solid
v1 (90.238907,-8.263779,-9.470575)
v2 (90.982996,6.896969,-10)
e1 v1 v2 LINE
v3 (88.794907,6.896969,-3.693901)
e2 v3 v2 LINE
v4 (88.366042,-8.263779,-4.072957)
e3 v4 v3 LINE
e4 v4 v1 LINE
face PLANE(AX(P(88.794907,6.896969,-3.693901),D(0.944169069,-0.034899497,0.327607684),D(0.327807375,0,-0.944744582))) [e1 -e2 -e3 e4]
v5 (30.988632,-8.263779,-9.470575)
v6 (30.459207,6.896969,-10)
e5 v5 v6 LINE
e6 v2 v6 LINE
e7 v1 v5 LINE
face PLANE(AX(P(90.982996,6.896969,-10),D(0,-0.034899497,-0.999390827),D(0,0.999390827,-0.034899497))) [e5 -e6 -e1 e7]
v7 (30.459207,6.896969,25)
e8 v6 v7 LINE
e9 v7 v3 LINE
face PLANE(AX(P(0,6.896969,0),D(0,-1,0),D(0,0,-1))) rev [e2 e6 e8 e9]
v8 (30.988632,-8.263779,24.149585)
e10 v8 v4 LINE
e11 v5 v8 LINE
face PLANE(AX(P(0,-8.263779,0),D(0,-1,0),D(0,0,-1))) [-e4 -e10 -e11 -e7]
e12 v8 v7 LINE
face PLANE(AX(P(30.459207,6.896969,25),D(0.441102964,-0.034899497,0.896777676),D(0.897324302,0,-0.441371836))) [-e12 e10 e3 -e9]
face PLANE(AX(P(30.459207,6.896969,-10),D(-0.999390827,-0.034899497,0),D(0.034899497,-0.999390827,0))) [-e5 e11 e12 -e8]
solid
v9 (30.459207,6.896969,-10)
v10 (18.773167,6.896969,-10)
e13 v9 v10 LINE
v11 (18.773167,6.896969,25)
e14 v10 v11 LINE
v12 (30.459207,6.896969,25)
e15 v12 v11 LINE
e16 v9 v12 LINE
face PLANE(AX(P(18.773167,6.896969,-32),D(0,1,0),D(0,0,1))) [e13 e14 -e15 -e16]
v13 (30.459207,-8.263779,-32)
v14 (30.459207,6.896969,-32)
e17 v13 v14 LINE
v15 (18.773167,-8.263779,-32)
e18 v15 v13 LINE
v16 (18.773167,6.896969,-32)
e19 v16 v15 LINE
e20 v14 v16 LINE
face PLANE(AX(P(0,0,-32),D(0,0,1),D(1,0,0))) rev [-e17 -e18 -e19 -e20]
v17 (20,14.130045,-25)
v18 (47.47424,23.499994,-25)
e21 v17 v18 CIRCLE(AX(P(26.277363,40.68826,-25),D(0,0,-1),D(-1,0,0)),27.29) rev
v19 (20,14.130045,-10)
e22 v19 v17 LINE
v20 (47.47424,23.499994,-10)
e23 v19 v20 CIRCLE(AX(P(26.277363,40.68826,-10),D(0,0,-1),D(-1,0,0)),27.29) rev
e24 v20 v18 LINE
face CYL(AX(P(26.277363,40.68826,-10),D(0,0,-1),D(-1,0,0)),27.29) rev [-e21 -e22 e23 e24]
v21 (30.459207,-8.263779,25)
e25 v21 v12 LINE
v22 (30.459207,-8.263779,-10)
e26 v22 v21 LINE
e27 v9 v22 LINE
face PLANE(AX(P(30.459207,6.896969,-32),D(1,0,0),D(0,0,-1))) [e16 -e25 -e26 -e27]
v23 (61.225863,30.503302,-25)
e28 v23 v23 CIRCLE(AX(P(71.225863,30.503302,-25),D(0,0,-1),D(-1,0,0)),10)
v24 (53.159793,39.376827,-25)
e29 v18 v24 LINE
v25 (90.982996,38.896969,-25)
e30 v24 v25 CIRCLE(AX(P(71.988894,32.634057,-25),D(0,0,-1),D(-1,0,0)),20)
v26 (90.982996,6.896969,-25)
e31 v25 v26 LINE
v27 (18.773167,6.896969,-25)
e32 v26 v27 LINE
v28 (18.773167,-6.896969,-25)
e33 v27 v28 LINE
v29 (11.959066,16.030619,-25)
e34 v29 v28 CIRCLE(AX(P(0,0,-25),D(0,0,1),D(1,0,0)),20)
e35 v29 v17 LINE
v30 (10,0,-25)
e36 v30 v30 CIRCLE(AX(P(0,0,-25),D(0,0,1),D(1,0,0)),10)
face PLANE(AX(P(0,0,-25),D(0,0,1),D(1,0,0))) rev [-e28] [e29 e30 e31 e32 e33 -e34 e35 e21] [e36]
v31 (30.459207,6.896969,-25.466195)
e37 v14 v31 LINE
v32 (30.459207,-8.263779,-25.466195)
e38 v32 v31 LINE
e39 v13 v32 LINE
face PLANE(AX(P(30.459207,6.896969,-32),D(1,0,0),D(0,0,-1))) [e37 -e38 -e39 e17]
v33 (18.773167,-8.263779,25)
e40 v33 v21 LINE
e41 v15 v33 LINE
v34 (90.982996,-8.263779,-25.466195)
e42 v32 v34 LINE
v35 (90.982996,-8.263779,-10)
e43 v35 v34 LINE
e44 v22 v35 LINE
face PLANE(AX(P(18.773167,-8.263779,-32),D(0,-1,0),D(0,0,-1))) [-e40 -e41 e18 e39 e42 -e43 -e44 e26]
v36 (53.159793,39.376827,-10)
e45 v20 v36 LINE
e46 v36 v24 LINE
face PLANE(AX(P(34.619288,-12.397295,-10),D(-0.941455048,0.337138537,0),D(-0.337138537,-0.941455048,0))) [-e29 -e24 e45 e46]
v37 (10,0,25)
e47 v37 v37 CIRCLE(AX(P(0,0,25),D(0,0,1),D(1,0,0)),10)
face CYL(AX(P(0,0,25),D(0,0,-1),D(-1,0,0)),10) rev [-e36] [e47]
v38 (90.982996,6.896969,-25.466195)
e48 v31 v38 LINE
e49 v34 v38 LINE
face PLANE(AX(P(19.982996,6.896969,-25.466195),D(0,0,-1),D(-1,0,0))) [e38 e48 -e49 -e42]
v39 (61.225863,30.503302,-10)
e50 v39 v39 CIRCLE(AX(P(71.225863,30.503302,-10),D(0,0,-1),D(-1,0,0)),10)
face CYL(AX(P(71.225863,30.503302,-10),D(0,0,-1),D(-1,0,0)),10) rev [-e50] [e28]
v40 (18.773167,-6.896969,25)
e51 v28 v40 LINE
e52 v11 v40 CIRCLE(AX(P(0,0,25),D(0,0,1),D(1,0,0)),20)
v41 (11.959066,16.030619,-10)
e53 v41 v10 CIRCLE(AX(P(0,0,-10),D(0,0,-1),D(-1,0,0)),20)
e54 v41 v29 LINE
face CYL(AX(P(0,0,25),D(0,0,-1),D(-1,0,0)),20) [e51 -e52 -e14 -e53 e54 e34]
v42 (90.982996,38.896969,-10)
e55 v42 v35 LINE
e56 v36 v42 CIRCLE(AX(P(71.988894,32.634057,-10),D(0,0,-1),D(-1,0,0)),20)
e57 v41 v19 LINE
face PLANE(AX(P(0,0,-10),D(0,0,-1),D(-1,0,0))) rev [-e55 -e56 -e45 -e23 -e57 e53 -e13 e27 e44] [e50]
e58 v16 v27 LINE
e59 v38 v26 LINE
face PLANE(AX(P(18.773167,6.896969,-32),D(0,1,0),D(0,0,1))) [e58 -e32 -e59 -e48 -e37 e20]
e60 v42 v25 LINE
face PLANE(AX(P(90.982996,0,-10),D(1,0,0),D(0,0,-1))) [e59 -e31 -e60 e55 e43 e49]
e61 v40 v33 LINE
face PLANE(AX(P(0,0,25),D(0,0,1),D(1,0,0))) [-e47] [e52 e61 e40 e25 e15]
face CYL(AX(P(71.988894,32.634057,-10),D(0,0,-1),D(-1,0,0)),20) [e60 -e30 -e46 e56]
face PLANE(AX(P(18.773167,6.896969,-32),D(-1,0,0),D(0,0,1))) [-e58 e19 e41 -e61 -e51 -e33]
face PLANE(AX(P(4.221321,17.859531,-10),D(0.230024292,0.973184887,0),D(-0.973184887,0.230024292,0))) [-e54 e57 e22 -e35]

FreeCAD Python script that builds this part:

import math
import FreeCAD as App
import Part
import Sketcher

V = App.Vector
Q = App.Units.Quantity


def add_polygon(sketch, points):
    """Adds a closed chain of lines whose ends are joined by coincident constraints."""
    first, n = sketch.GeometryCount, len(points)
    for a, b in zip(points, points[1:] + points[:1]):
        sketch.addGeometry(Part.LineSegment(App.Vector(*a, 0), App.Vector(*b, 0)), False)
    for i in range(n):
        sketch.addConstraint(Sketcher.Constraint("Coincident", first + i, 2, first + (i + 1) % n, 1))

doc = App.newDocument("Part")
body = doc.addObject("PartDesign::Body", "Body")

sketch1 = body.newObject("Sketcher::SketchObject", "Sketch")
sketch1.AttachmentSupport = (doc.getObject("XY_Plane"), [""])
sketch1.MapMode = "FlatFace"
sketch1.addGeometry([
    Part.Circle(V(0, 0, 0), V(0, 0, 1), 20),
    Part.Circle(V(0, 0, 0), V(0, 0, 1), 10),
], False)
sketch1.addConstraint([
    Sketcher.Constraint("Coincident", 0, 3, -1, 1),
    Sketcher.Constraint("Coincident", 1, 3, -1, 1),
    Sketcher.Constraint("Diameter", 0, Q("40 mm")),
    Sketcher.Constraint("Diameter", 1, Q("20 mm")),
])
pad1 = body.newObject("PartDesign::Pad", "Pad")
pad1.Profile = sketch1
pad1.Length = 50
pad1.Midplane = True

sketch2 = body.newObject("Sketcher::SketchObject", "Sketch001")
sketch2.AttachmentSupport = (doc.getObject("XY_Plane"), [""])
sketch2.MapMode = "FlatFace"
sketch2.AttachmentOffset = App.Placement(V(0, 0, -25), App.Rotation())
sketch2.addGeometry([
    Part.ArcOfCircle(Part.Circle(V(0, 0, 0), V(0, 0, 1), 20), math.radians(20), math.radians(53)),
    Part.LineSegment(V(12, 16, 0), V(20, 14, 0)),
    Part.ArcOfCircle(Part.Circle(V(26, 41, 0), V(0, 0, 1), 27), math.radians(-103), math.radians(-39)),
    Part.LineSegment(V(47, 23, 0), V(53, 39, 0)),
    Part.ArcOfCircle(Part.Circle(V(72, 33, 0), V(0, 0, 1), 20), math.radians(18), math.radians(160)),
    Part.LineSegment(V(91, 39, 0), V(91, 7, 0)),
    Part.LineSegment(V(91, 7, 0), V(19, 7, 0)),
    Part.Circle(V(71, 31, 0), V(0, 0, 1), 10),
], False)
sketch2.addConstraint([
    Sketcher.Constraint("Coincident", 0, 2, 1, 1),
    Sketcher.Constraint("Tangent", 1, 2, 2, 1),
    Sketcher.Constraint("Coincident", 2, 2, 3, 1),
    Sketcher.Constraint("Tangent", 3, 2, 4, 2),
    Sketcher.Constraint("Coincident", 4, 1, 5, 1),
    Sketcher.Constraint("Coincident", 5, 2, 6, 1),
    Sketcher.Constraint("Coincident", 6, 2, 0, 1),
    Sketcher.Constraint("Vertical", 5),
    Sketcher.Constraint("Horizontal", 6),
    Sketcher.Constraint("Coincident", 0, 3, -1, 1),
    Sketcher.Constraint("Equal", 0, 4),
    Sketcher.Constraint("Diameter", 7, Q("20 mm")),
    Sketcher.Constraint("Radius", 0, Q("20 mm")),
    Sketcher.Constraint("DistanceY", 5, 2, 5, 1, Q("32 mm")),
    Sketcher.Constraint("Radius", 2, Q("27.29 mm")),
    Sketcher.Constraint("DistanceX", -1, 1, 1, 2, Q("20 mm")),
    Sketcher.Constraint("DistanceX", 6, 2, 6, 1, Q("72.209829 mm")),
    Sketcher.Constraint("DistanceY", -1, 1, 7, 3, Q("30.503302 mm")),
    Sketcher.Constraint("DistanceX", 2, 3, 7, 3, Q("44.9485 mm")),
    Sketcher.Constraint("DistanceX", 3, 2, 4, 3, Q("18.829101 mm")),
    Sketcher.Constraint("DistanceX", 0, 2, 6, 2, Q("6.814102 mm")),
    Sketcher.Constraint("DistanceY", -1, 1, 2, 3, Q("40.68826 mm")),
    Sketcher.Constraint("DistanceY", -1, 1, 0, 2, Q("16.030619 mm")),
    Sketcher.Constraint("DistanceX", -1, 1, 2, 2, Q("47.47424 mm")),
])
pad2 = body.newObject("PartDesign::Pad", "Pad001")
pad2.Profile = sketch2
pad2.Length = 15

sketch3 = body.newObject("Sketcher::SketchObject", "Sketch002")
sketch3.AttachmentSupport = (doc.getObject("XY_Plane"), [""])
sketch3.MapMode = "FlatFace"
sketch3.AttachmentOffset = App.Placement(V(0, 0, 25), App.Rotation())
add_polygon(sketch3, [(19, 7), (19, -8), (30, -8), (30, 7)])
sketch3.addConstraint([
    Sketcher.Constraint("Vertical", 0),
    Sketcher.Constraint("Horizontal", 1),
    Sketcher.Constraint("Vertical", 2),
    Sketcher.Constraint("Horizontal", 3),
    Sketcher.Constraint("DistanceX", 1, 1, 1, 2, Q("11.686039 mm")),
    Sketcher.Constraint("DistanceY", 0, 2, 0, 1, Q("15.160748 mm")),
    Sketcher.Constraint("DistanceY", 0, 2, -1, 1, Q("8.263779 mm")),
    Sketcher.Constraint("DistanceX", -1, 1, 0, 2, Q("18.773167 mm")),
])
pad3 = body.newObject("PartDesign::Pad", "Pad002")
pad3.Profile = sketch3
pad3.Length = 57
pad3.Reversed = True

sketch4 = body.newObject("Sketcher::SketchObject", "Sketch003")
sketch4.AttachmentSupport = (doc.getObject("YZ_Plane"), [""])
sketch4.MapMode = "FlatFace"
sketch4.AttachmentOffset = App.Placement(V(0, 0, 90.982996), App.Rotation())
add_polygon(sketch4, [(7, -10), (-8, -10), (-8, -25), (7, -25)])
sketch4.addConstraint([
    Sketcher.Constraint("Horizontal", 0),
    Sketcher.Constraint("Vertical", 1),
    Sketcher.Constraint("Horizontal", 2),
    Sketcher.Constraint("Vertical", 3),
    Sketcher.Constraint("DistanceY", 0, 2, -1, 1, Q("10 mm")),
    Sketcher.Constraint("DistanceX", 0, 2, 0, 1, Q("15.160748 mm")),
    Sketcher.Constraint("DistanceY", 1, 2, 1, 1, Q("15.466195 mm")),
    Sketcher.Constraint("DistanceX", 0, 2, -1, 1, Q("8.263779 mm")),
])
pad4 = body.newObject("PartDesign::Pad", "Pad003")
pad4.Profile = sketch4
pad4.Length = 71
pad4.Reversed = True
body2 = doc.addObject("PartDesign::Body", "Body001")

sketch5 = body2.newObject("Sketcher::SketchObject", "Sketch004")
sketch5.AttachmentSupport = (doc.getObject("XZ_Plane001"), [""])
sketch5.MapMode = "FlatFace"
sketch5.AttachmentOffset = App.Placement(V(0, 0, -6.896969), App.Rotation())
add_polygon(sketch5, [(30, 25), (89, -4), (91, -10), (30, -10)])
sketch5.addConstraint([
    Sketcher.Constraint("Horizontal", 2),
    Sketcher.Constraint("Vertical", 3),
    Sketcher.Constraint("DistanceY", 3, 1, 3, 2, Q("35 mm")),
    Sketcher.Constraint("DistanceY", 1, 2, -1, 1, Q("10 mm")),
    Sketcher.Constraint("DistanceX", 2, 2, 2, 1, Q("60.523789 mm")),
    Sketcher.Constraint("DistanceY", 0, 2, -1, 1, Q("3.693901 mm")),
    Sketcher.Constraint("DistanceX", 2, 2, 0, 2, Q("58.3357 mm")),
    Sketcher.Constraint("DistanceX", -1, 1, 0, 2, Q("88.794907 mm")),
])
pad5 = body2.newObject("PartDesign::Pad", "Pad004")
pad5.Profile = sketch5
pad5.Length = 15.160748
pad5.TaperAngle = -2

doc.recompute()
